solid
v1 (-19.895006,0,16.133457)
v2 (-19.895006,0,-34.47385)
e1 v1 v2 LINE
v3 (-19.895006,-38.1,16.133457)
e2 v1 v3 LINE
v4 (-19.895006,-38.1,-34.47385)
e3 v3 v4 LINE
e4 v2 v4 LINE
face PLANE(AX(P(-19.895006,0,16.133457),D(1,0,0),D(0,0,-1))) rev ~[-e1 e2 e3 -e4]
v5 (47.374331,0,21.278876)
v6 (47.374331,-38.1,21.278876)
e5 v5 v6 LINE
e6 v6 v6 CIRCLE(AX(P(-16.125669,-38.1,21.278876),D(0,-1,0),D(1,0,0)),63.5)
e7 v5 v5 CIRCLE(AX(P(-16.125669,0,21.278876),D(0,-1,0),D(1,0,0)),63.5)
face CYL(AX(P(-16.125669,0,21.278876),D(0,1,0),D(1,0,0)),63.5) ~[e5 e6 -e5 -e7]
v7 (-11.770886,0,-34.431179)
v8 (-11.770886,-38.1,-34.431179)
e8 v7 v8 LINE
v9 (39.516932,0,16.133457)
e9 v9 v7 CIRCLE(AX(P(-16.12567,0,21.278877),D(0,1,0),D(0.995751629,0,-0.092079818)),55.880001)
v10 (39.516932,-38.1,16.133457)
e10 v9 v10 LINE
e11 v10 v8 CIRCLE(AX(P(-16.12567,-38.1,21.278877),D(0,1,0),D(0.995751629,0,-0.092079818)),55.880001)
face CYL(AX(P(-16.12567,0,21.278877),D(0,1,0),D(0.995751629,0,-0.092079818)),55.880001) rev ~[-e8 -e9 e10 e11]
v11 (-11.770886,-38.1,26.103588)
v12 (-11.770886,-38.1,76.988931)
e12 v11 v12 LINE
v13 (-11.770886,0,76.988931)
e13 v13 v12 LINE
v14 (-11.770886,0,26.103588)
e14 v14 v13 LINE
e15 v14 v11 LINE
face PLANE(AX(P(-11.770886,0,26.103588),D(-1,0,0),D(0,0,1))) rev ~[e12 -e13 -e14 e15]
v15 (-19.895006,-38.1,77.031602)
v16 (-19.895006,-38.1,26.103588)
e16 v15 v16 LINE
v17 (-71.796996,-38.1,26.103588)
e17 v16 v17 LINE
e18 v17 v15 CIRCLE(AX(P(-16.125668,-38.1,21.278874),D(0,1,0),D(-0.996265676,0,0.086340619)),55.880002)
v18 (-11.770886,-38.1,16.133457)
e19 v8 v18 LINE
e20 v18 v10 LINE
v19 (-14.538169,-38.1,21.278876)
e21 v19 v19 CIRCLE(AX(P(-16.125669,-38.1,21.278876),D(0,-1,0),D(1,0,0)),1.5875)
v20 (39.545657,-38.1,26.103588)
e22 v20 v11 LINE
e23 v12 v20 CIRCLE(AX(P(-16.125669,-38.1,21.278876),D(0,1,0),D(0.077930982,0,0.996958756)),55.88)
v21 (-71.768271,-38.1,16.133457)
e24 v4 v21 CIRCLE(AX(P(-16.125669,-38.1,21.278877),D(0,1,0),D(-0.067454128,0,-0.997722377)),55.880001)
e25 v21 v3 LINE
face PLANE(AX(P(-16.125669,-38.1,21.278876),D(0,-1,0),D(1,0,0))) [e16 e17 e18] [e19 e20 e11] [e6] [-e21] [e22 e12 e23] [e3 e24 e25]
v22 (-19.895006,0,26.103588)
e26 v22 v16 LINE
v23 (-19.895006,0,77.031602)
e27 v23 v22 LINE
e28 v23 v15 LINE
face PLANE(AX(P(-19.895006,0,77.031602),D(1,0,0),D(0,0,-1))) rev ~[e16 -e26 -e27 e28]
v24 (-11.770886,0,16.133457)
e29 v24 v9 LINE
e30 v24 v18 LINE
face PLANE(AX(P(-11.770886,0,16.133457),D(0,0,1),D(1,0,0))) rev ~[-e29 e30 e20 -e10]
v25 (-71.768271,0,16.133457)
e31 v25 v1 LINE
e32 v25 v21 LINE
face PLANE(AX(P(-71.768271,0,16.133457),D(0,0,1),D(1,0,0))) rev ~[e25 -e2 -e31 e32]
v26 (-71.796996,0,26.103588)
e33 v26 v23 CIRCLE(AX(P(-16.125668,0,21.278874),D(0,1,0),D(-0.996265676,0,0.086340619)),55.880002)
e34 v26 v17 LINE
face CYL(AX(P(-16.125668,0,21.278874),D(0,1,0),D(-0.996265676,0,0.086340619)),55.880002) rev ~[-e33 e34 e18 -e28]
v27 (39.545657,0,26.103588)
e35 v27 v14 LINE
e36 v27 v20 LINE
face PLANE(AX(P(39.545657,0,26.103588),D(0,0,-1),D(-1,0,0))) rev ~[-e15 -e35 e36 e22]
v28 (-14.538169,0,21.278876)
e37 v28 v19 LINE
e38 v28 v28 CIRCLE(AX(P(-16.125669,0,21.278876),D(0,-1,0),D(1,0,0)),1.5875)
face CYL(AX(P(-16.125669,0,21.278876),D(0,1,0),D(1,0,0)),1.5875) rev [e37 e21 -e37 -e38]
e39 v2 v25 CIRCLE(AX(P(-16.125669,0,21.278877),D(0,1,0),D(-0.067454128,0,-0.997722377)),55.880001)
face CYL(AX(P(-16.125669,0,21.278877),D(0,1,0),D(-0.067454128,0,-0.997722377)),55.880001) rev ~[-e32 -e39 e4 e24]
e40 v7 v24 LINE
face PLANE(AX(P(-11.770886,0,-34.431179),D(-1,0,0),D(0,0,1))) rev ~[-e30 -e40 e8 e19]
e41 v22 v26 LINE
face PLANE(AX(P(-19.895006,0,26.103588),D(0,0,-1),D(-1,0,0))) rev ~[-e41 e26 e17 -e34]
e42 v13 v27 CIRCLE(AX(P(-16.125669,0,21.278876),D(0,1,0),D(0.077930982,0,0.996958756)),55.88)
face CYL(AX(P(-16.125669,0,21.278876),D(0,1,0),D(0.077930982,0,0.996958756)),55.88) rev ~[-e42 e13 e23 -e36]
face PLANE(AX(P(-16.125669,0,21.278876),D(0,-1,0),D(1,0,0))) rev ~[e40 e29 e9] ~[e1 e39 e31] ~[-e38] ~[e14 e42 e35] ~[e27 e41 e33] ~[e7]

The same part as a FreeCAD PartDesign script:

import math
import FreeCAD as App
import Part
import Sketcher

V = App.Vector
Q = App.Units.Quantity

doc = App.newDocument("Part")
body = doc.addObject("PartDesign::Body", "Body")

# Sketch on XZ plane
sketch1 = body.newObject("Sketcher::SketchObject", "Sketch")
sketch1.AttachmentSupport = (doc.getObject("XZ_Plane"), [""])
sketch1.MapMode = "FlatFace"
sketch1.addGeometry([
    Part.Circle(V(-16.1, 21.3, 0), V(0, 0, 1), 63.5),  # 0
    Part.LineSegment(V(-19.9, 16.1, 0), V(-19.9, -34.5, 0)),  # 1
    Part.ArcOfCircle(Part.Circle(V(-16.1, 21.3, 0), V(0, 0, 1), 55.9), math.radians(-175), math.radians(-94)),  # 2
    Part.LineSegment(V(-71.8, 16.1, 0), V(-19.9, 16.1, 0)),  # 3
    Part.ArcOfCircle(Part.Circle(V(-16.1, 21.3, 0), V(0, 0, 1), 55.9), math.radians(-86), math.radians(-5)),  # 4
    Part.LineSegment(V(-11.8, -34.4, 0), V(-11.8, 16.1, 0)),  # 5
    Part.LineSegment(V(-11.8, 16.1, 0), V(39.5, 16.1, 0)),  # 6
    Part.Circle(V(-16.1, 21.3, 0), V(0, 0, 1), 1.6),  # 7
    Part.LineSegment(V(-19.9, 26.1, 0), V(-71.8, 26.1, 0)),  # 8
    Part.ArcOfCircle(Part.Circle(V(-16.1, 21.3, 0), V(0, 0, 1), 55.9), math.radians(94), math.radians(175)),  # 9
    Part.LineSegment(V(-19.9, 77, 0), V(-19.9, 26.1, 0)),  # 10
    Part.LineSegment(V(39.5, 26.1, 0), V(-11.8, 26.1, 0)),  # 11
    Part.LineSegment(V(-11.8, 26.1, 0), V(-11.8, 77, 0)),  # 12
    Part.ArcOfCircle(Part.Circle(V(-16.1, 21.3, 0), V(0, 0, 1), 55.9), math.radians(5), math.radians(86)),  # 13
], False)
sketch1.addConstraint([
    Sketcher.Constraint("Coincident", 1, 2, 2, 2),
    Sketcher.Constraint("Coincident", 2, 1, 3, 1),
    Sketcher.Constraint("Coincident", 3, 2, 1, 1),
    Sketcher.Constraint("Coincident", 4, 1, 5, 1),
    Sketcher.Constraint("Coincident", 5, 2, 6, 1),
    Sketcher.Constraint("Coincident", 6, 2, 4, 2),
    Sketcher.Constraint("Coincident", 8, 2, 9, 2),
    Sketcher.Constraint("Coincident", 9, 1, 10, 1),
    Sketcher.Constraint("Coincident", 10, 2, 8, 1),
    Sketcher.Constraint("Coincident", 11, 2, 12, 1),
    Sketcher.Constraint("Coincident", 12, 2, 13, 2),
    Sketcher.Constraint("Coincident", 13, 1, 11, 1),
    Sketcher.Constraint("Vertical", 1),
    Sketcher.Constraint("Horizontal", 3),
    Sketcher.Constraint("Vertical", 5),
    Sketcher.Constraint("Horizontal", 6),
    Sketcher.Constraint("Horizontal", 8),
    Sketcher.Constraint("Vertical", 10),
    Sketcher.Constraint("Horizontal", 11),
    Sketcher.Constraint("Vertical", 12),
    Sketcher.Constraint("Coincident", 2, 3, 0, 3),
    Sketcher.Constraint("Coincident", 4, 3, 0, 3),
    Sketcher.Constraint("Coincident", 7, 3, 0, 3),
    Sketcher.Constraint("Coincident", 9, 3, 0, 3),
    Sketcher.Constraint("Coincident", 13, 3, 0, 3),
    Sketcher.Constraint("Equal", 2, 4),
    Sketcher.Constraint("Equal", 4, 9),
    Sketcher.Constraint("Equal", 9, 13),
    Sketcher.Constraint("Horizontal", 3, 2, 5, 2),
    Sketcher.Constraint("Horizontal", 10, 2, 11, 2),
    Sketcher.Constraint("Vertical", 3, 2, 9, 1),
    Sketcher.Constraint("Vertical", 5, 2, 11, 2),
    Sketcher.Constraint("Diameter", 0, Q("5 in")),
    Sketcher.Constraint("Radius", 2, Q("2.2 in")),
    Sketcher.Constraint("Diameter", 7, Q("0.125 in")),
    Sketcher.Constraint("DistanceX", 8, 2, 8, 1, Q("51.90199 mm")),
    Sketcher.Constraint("DistanceX", 2, 1, 4, 3, Q("55.642601 mm")),
    Sketcher.Constraint("DistanceX", 3, 1, 3, 2, Q("51.873265 mm")),
    Sketcher.Constraint("DistanceX", 6, 1, 6, 2, Q("51.287818 mm")),
    Sketcher.Constraint("DistanceX", 0, 3, -1, 1, Q("16.125669 mm")),
    Sketcher.Constraint("DistanceY", 1, 2, -1, 1, Q("34.47385 mm")),
])
pad1 = body.newObject("PartDesign::Pad", "Pad")
pad1.Profile = sketch1
pad1.Length = Q("1.5 in")

doc.recompute()
